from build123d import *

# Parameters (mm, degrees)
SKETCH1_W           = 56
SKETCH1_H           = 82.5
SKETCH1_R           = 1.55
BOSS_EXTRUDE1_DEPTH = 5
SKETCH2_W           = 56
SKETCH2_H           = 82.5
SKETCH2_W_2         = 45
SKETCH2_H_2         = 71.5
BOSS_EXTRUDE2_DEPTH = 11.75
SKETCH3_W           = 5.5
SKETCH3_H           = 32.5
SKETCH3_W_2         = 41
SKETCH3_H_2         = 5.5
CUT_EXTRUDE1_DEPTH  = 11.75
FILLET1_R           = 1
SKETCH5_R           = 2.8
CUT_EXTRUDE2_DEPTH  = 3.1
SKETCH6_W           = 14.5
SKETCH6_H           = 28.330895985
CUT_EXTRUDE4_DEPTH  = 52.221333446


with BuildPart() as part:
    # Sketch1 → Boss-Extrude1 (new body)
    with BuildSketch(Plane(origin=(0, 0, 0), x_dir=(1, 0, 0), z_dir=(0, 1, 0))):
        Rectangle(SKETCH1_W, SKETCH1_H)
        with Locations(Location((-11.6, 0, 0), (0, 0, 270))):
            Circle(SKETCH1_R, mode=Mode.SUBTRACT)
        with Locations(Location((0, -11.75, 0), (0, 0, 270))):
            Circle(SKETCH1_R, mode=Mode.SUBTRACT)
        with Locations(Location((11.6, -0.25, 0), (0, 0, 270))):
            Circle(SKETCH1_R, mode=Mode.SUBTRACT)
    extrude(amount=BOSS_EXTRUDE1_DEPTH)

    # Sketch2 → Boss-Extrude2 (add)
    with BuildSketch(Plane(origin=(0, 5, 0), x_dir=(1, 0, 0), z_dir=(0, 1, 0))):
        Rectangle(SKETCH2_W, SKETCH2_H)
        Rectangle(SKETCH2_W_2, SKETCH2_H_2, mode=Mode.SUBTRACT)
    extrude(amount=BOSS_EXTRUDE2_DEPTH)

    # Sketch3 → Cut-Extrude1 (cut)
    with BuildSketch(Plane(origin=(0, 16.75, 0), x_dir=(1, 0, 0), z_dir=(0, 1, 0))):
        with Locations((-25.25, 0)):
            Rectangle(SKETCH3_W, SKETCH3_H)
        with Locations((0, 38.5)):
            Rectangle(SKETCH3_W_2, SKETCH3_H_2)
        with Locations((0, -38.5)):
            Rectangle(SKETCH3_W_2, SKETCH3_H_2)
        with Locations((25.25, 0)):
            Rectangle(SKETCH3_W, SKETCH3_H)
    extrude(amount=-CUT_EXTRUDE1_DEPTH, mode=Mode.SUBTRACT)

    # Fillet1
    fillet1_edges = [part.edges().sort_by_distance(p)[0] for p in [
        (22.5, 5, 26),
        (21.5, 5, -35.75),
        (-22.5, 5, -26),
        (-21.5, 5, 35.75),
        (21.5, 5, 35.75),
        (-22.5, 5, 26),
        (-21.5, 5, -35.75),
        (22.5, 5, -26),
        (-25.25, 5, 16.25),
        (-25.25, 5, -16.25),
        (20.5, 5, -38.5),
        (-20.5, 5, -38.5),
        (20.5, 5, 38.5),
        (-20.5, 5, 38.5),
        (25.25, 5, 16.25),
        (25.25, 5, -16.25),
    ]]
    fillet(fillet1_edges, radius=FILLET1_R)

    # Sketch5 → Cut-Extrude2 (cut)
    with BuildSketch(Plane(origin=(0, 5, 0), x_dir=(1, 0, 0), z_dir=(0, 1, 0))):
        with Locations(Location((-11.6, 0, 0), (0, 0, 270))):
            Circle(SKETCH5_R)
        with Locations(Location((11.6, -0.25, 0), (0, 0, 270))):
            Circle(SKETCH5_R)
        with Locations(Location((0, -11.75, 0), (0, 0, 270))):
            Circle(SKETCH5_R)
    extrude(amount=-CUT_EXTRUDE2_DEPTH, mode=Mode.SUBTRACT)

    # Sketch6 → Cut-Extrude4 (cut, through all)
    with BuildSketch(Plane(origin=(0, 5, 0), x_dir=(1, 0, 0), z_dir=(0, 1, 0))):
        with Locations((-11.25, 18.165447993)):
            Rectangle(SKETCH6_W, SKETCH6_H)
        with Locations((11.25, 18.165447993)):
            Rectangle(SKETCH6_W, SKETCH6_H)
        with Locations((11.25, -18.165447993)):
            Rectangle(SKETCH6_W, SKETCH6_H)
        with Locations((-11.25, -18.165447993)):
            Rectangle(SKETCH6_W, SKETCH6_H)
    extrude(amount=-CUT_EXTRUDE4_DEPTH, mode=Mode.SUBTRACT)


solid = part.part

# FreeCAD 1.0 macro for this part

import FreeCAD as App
import Part
import Sketcher

V = App.Vector


def edges_at(feature, points):
    """Names of the edges that pass closest to the given points."""
    edges = feature.Shape.Edges
    near = lambda p: min(range(len(edges)), key=lambda i: edges[i].distToShape(Part.Vertex(*p))[0])
    return sorted({f"Edge{near(p) + 1}" for p in points})

doc = App.newDocument("Part")
params = doc.addObject("Spreadsheet::Sheet", "Params")
for row, (alias, value) in enumerate([
    ("sketch1_diameter", "3.1 mm"),
    ("sketch1_width", "56 mm"),
    ("sketch1_height", "82.5 mm"),
    ("pad1_length", "5 mm"),
    ("sketch2_width", "56 mm"),
    ("sketch2_width2", "45 mm"),
    ("sketch2_height", "82.5 mm"),
    ("sketch2_height2", "71.5 mm"),
    ("pad2_length", "11.75 mm"),
    ("sketch3_width", "41 mm"),
    ("sketch3_width2", "5.5 mm"),
    ("sketch3_height", "32.5 mm"),
    ("pocket1_length", "11.75 mm"),
    ("fillet_radius", "1 mm"),
    ("sketch4_diameter", "5.6 mm"),
    ("pocket2_length", "3.1 mm"),
    ("sketch5_width", "14.5 mm"),
], start=1):
    params.set(f"A{row}", alias)
    params.set(f"B{row}", "=" + value)
    params.setAlias(f"B{row}", alias)

body = doc.addObject("PartDesign::Body", "Body")

sketch1 = doc.addObject("Sketcher::SketchObject", "Sketch")
body.addObject(sketch1)
sketch1.AttachmentSupport = (doc.XZ_Plane, [""])
sketch1.MapMode = "FlatFace"
sketch1.addGeometry([
    Part.LineSegment(V(-28, -41.2, 0), V(-28, 41.2, 0)),
    Part.LineSegment(V(-28, 41.2, 0), V(28, 41.2, 0)),
    Part.LineSegment(V(28, 41.2, 0), V(28, -41.2, 0)),
    Part.LineSegment(V(28, -41.2, 0), V(-28, -41.2, 0)),
    Part.Circle(V(0, 11.8, 0), V(0, 0, 1), 1.6),
    Part.Circle(V(-11.6, 0, 0), V(0, 0, 1), 1.6),
    Part.Circle(V(11.6, 0.2, 0), V(0, 0, 1), 1.6),
], False)
sketch1.addConstraint([
    Sketcher.Constraint("Coincident", 0, 2, 1, 1),
    Sketcher.Constraint("Coincident", 1, 2, 2, 1),
    Sketcher.Constraint("Coincident", 2, 2, 3, 1),
    Sketcher.Constraint("Coincident", 3, 2, 0, 1),
    Sketcher.Constraint("Vertical", 0),
    Sketcher.Constraint("Horizontal", 1),
    Sketcher.Constraint("Vertical", 2),
    Sketcher.Constraint("Horizontal", 3),
    Sketcher.Constraint("Equal", 4, 5),
    Sketcher.Constraint("Equal", 5, 6),
    Sketcher.Constraint("Symmetric", 0, 2, 2, 2, -1, 1),
    Sketcher.Constraint("PointOnObject", 4, 3, -2),
    Sketcher.Constraint("PointOnObject", 5, 3, -1),
    Sketcher.Constraint("Diameter", 4, 3.1),
    Sketcher.Constraint("DistanceX", 1, 1, 1, 2, 56.0),
    Sketcher.Constraint("DistanceY", 0, 1, 0, 2, 82.5),
    Sketcher.Constraint("DistanceY", 6, 3, 0, 2, 41.0),
    Sketcher.Constraint("DistanceY", 2, 2, 4, 3, 53.0),
    Sketcher.Constraint("DistanceX", 5, 3, -1, 1, 11.6),
    Sketcher.Constraint("DistanceX", -1, 1, 6, 3, 11.6),
])
sketch1.setExpression("Constraints[13]", "Params.sketch1_diameter")
sketch1.setExpression("Constraints[14]", "Params.sketch1_width")
sketch1.setExpression("Constraints[15]", "Params.sketch1_height")
pad1 = doc.addObject("PartDesign::Pad", "Pad")
body.addObject(pad1)
pad1.Profile = sketch1
pad1.setExpression("Length", "Params.pad1_length")
pad1.Reversed = True

sketch2 = doc.addObject("Sketcher::SketchObject", "Sketch001")
body.addObject(sketch2)
sketch2.AttachmentSupport = (doc.XZ_Plane, [""])
sketch2.MapMode = "FlatFace"
sketch2.AttachmentOffset = App.Placement(V(0, 0, -5), App.Rotation())
sketch2.addGeometry([
    Part.LineSegment(V(-28, -41, 0), V(-28, 41, 0)),
    Part.LineSegment(V(-28, 41, 0), V(28, 41, 0)),
    Part.LineSegment(V(28, 41, 0), V(28, -41, 0)),
    Part.LineSegment(V(28, -41, 0), V(-28, -41, 0)),
    Part.LineSegment(V(22, 36, 0), V(-22, 36, 0)),
    Part.LineSegment(V(-22, 36, 0), V(-22, -36, 0)),
    Part.LineSegment(V(-22, -36, 0), V(22, -36, 0)),
    Part.LineSegment(V(22, -36, 0), V(22, 36, 0)),
], False)
sketch2.addConstraint([
    Sketcher.Constraint("Coincident", 0, 2, 1, 1),
    Sketcher.Constraint("Coincident", 1, 2, 2, 1),
    Sketcher.Constraint("Coincident", 2, 2, 3, 1),
    Sketcher.Constraint("Coincident", 3, 2, 0, 1),
    Sketcher.Constraint("Coincident", 4, 2, 5, 1),
    Sketcher.Constraint("Coincident", 5, 2, 6, 1),
    Sketcher.Constraint("Coincident", 6, 2, 7, 1),
    Sketcher.Constraint("Coincident", 7, 2, 4, 1),
    Sketcher.Constraint("Vertical", 0),
    Sketcher.Constraint("Horizontal", 1),
    Sketcher.Constraint("Vertical", 2),
    Sketcher.Constraint("Horizontal", 3),
    Sketcher.Constraint("Horizontal", 4),
    Sketcher.Constraint("Vertical", 5),
    Sketcher.Constraint("Horizontal", 6),
    Sketcher.Constraint("Vertical", 7),
    Sketcher.Constraint("Symmetric", 0, 2, 2, 2, -1, 1),
    Sketcher.Constraint("Symmetric", 4, 2, 6, 2, -1, 1),
    Sketcher.Constraint("DistanceX", 1, 1, 1, 2, 56.0),
    Sketcher.Constraint("DistanceX", 4, 2, 4, 1, 45.0),
    Sketcher.Constraint("DistanceY", 0, 1, 0, 2, 82.5),
    Sketcher.Constraint("DistanceY", 5, 2, 5, 1, 71.5),
])
sketch2.setExpression("Constraints[18]", "Params.sketch2_width")
sketch2.setExpression("Constraints[19]", "Params.sketch2_width2")
sketch2.setExpression("Constraints[20]", "Params.sketch2_height")
sketch2.setExpression("Constraints[21]", "Params.sketch2_height2")
pad2 = doc.addObject("PartDesign::Pad", "Pad001")
body.addObject(pad2)
pad2.Profile = sketch2
pad2.setExpression("Length", "Params.pad2_length")
pad2.Reversed = True

sketch3 = doc.addObject("Sketcher::SketchObject", "Sketch002")
body.addObject(sketch3)
sketch3.AttachmentSupport = (doc.XZ_Plane, [""])
sketch3.MapMode = "FlatFace"
sketch3.AttachmentOffset = App.Placement(V(0, 0, -16.75), App.Rotation())
sketch3.addGeometry([
    Part.LineSegment(V(-28, -16, 0), V(-28, 16, 0)),
    Part.LineSegment(V(-28, 16, 0), V(-22, 16, 0)),
    Part.LineSegment(V(-22, 16, 0), V(-22, -16, 0)),
    Part.LineSegment(V(-22, -16, 0), V(-28, -16, 0)),
    Part.LineSegment(V(-20, -41, 0), V(-20, -36, 0)),
    Part.LineSegment(V(-20, -36, 0), V(20, -36, 0)),
    Part.LineSegment(V(20, -36, 0), V(20, -41, 0)),
    Part.LineSegment(V(20, -41, 0), V(-20, -41, 0)),
    Part.LineSegment(V(-20, 36, 0), V(-20, 41, 0)),
    Part.LineSegment(V(-20, 41, 0), V(20, 41, 0)),
    Part.LineSegment(V(20, 41, 0), V(20, 36, 0)),
    Part.LineSegment(V(20, 36, 0), V(-20, 36, 0)),
    Part.LineSegment(V(22, -16, 0), V(22, 16, 0)),
    Part.LineSegment(V(22, 16, 0), V(28, 16, 0)),
    Part.LineSegment(V(28, 16, 0), V(28, -16, 0)),
    Part.LineSegment(V(28, -16, 0), V(22, -16, 0)),
], False)
sketch3.addConstraint([
    Sketcher.Constraint("Coincident", 0, 2, 1, 1),
    Sketcher.Constraint("Coincident", 1, 2, 2, 1),
    Sketcher.Constraint("Coincident", 2, 2, 3, 1),
    Sketcher.Constraint("Coincident", 3, 2, 0, 1),
    Sketcher.Constraint("Coincident", 4, 2, 5, 1),
    Sketcher.Constraint("Coincident", 5, 2, 6, 1),
    Sketcher.Constraint("Coincident", 6, 2, 7, 1),
    Sketcher.Constraint("Coincident", 7, 2, 4, 1),
    Sketcher.Constraint("Coincident", 8, 2, 9, 1),
    Sketcher.Constraint("Coincident", 9, 2, 10, 1),
    Sketcher.Constraint("Coincident", 10, 2, 11, 1),
    Sketcher.Constraint("Coincident", 11, 2, 8, 1),
    Sketcher.Constraint("Coincident", 12, 2, 13, 1),
    Sketcher.Constraint("Coincident", 13, 2, 14, 1),
    Sketcher.Constraint("Coincident", 14, 2, 15, 1),
    Sketcher.Constraint("Coincident", 15, 2, 12, 1),
    Sketcher.Constraint("Vertical", 0),
    Sketcher.Constraint("Horizontal", 1),
    Sketcher.Constraint("Vertical", 2),
    Sketcher.Constraint("Horizontal", 3),
    Sketcher.Constraint("Vertical", 4),
    Sketcher.Constraint("Horizontal", 5),
    Sketcher.Constraint("Vertical", 6),
    Sketcher.Constraint("Horizontal", 7),
    Sketcher.Constraint("Vertical", 8),
    Sketcher.Constraint("Horizontal", 9),
    Sketcher.Constraint("Vertical", 10),
    Sketcher.Constraint("Horizontal", 11),
    Sketcher.Constraint("Vertical", 12),
    Sketcher.Constraint("Horizontal", 13),
    Sketcher.Constraint("Vertical", 14),
    Sketcher.Constraint("Horizontal", 15),
    Sketcher.Constraint("Symmetric", 6, 2, 8, 2, -1, 1),
    Sketcher.Constraint("Symmetric", 4, 2, 10, 2, -1, 1),
    Sketcher.Constraint("Symmetric", 2, 2, 12, 2, -1, 1),
    Sketcher.Constraint("Symmetric", 0, 2, 14, 2, -1, 1),
    Sketcher.Constraint("Horizontal", 1, 2, 12, 2),
    Sketcher.Constraint("Vertical", 7, 2, 8, 2),
    Sketcher.Constraint("Equal", 15, 4),
    Sketcher.Constraint("DistanceX", 5, 1, 5, 2, 41.0),
    Sketcher.Constraint("DistanceX", 1, 1, 1, 2, 5.5),
    Sketcher.Constraint("DistanceY", 0, 1, 0, 2, 32.5),
    Sketcher.Constraint("DistanceX", 0, 2, -1, 1, 28.0),
    Sketcher.Constraint("DistanceY", 4, 2, 1, 2, 52.0),
])
sketch3.setExpression("Constraints[39]", "Params.sketch3_width")
sketch3.setExpression("Constraints[40]", "Params.sketch3_width2")
sketch3.setExpression("Constraints[41]", "Params.sketch3_height")
pocket1 = doc.addObject("PartDesign::Pocket", "Pocket")
body.addObject(pocket1)
pocket1.Profile = sketch3
pocket1.setExpression("Length", "Params.pocket1_length")
pocket1.Reversed = True
doc.recompute()

fillet = doc.addObject("PartDesign::Fillet", "Fillet")
body.addObject(fillet)
fillet.Base = (pocket1, edges_at(pocket1, [
    (22.5, 5, 26),
    (21.5, 5, -35.75),
    (-22.5, 5, -26),
    (-21.5, 5, 35.75),
    (21.5, 5, 35.75),
    (-22.5, 5, 26),
    (-21.5, 5, -35.75),
    (22.5, 5, -26),
    (-25.25, 5, 16.25),
    (-25.25, 5, -16.25),
    (20.5, 5, -38.5),
    (-20.5, 5, -38.5),
    (20.5, 5, 38.5),
    (-20.5, 5, 38.5),
    (25.25, 5, 16.25),
    (25.25, 5, -16.25),
]))
fillet.setExpression("Radius", "Params.fillet_radius")

sketch4 = doc.addObject("Sketcher::SketchObject", "Sketch003")
body.addObject(sketch4)
sketch4.AttachmentSupport = (doc.XZ_Plane, [""])
sketch4.MapMode = "FlatFace"
sketch4.AttachmentOffset = App.Placement(V(0, 0, -5), App.Rotation())
sketch4.addGeometry([
    Part.Circle(V(-11.6, 0, 0), V(0, 0, 1), 2.8),
    Part.Circle(V(11.6, 0.2, 0), V(0, 0, 1), 2.8),
    Part.Circle(V(0, 11.8, 0), V(0, 0, 1), 2.8),
], False)
sketch4.addConstraint([
    Sketcher.Constraint("Equal", 0, 1),
    Sketcher.Constraint("Equal", 1, 2),
    Sketcher.Constraint("PointOnObject", 0, 3, -1),
    Sketcher.Constraint("PointOnObject", 2, 3, -2),
    Sketcher.Constraint("Diameter", 0, 5.6),
    Sketcher.Constraint("DistanceX", 0, 3, -1, 1, 11.6),
    Sketcher.Constraint("DistanceX", -1, 1, 1, 3, 11.6),
    Sketcher.Constraint("DistanceY", 1, 3, 2, 3, 11.5),
    Sketcher.Constraint("DistanceY", -1, 1, 1, 3, 0.25),
])
sketch4.setExpression("Constraints[4]", "Params.sketch4_diameter")
pocket2 = doc.addObject("PartDesign::Pocket", "Pocket001")
body.addObject(pocket2)
pocket2.Profile = sketch4
pocket2.setExpression("Length", "Params.pocket2_length")
pocket2.Reversed = True

sketch5 = doc.addObject("Sketcher::SketchObject", "Sketch004")
body.addObject(sketch5)
sketch5.AttachmentSupport = (doc.XZ_Plane, [""])
sketch5.MapMode = "FlatFace"
sketch5.AttachmentOffset = App.Placement(V(0, 0, -5), App.Rotation())
sketch5.addGeometry([
    Part.LineSegment(V(-18, -32, 0), V(-18, -4, 0)),
    Part.LineSegment(V(-18, -4, 0), V(-4, -4, 0)),
    Part.LineSegment(V(-4, -4, 0), V(-4, -32, 0)),
    Part.LineSegment(V(-4, -32, 0), V(-18, -32, 0)),
    Part.LineSegment(V(4, -32, 0), V(4, -4, 0)),
    Part.LineSegment(V(4, -4, 0), V(18, -4, 0)),
    Part.LineSegment(V(18, -4, 0), V(18, -32, 0)),
    Part.LineSegment(V(18, -32, 0), V(4, -32, 0)),
    Part.LineSegment(V(4, 4, 0), V(4, 32, 0)),
    Part.LineSegment(V(4, 32, 0), V(18, 32, 0)),
    Part.LineSegment(V(18, 32, 0), V(18, 4, 0)),
    Part.LineSegment(V(18, 4, 0), V(4, 4, 0)),
    Part.LineSegment(V(-18, 4, 0), V(-18, 32, 0)),
    Part.LineSegment(V(-18, 32, 0), V(-4, 32, 0)),
    Part.LineSegment(V(-4, 32, 0), V(-4, 4, 0)),
    Part.LineSegment(V(-4, 4, 0), V(-18, 4, 0)),
], False)
sketch5.addConstraint([
    Sketcher.Constraint("Coincident", 0, 2, 1, 1),
    Sketcher.Constraint("Coincident", 1, 2, 2, 1),
    Sketcher.Constraint("Coincident", 2, 2, 3, 1),
    Sketcher.Constraint("Coincident", 3, 2, 0, 1),
    Sketcher.Constraint("Coincident", 4, 2, 5, 1),
    Sketcher.Constraint("Coincident", 5, 2, 6, 1),
    Sketcher.Constraint("Coincident", 6, 2, 7, 1),
    Sketcher.Constraint("Coincident", 7, 2, 4, 1),
    Sketcher.Constraint("Coincident", 8, 2, 9, 1),
    Sketcher.Constraint("Coincident", 9, 2, 10, 1),
    Sketcher.Constraint("Coincident", 10, 2, 11, 1),
    Sketcher.Constraint("Coincident", 11, 2, 8, 1),
    Sketcher.Constraint("Coincident", 12, 2, 13, 1),
    Sketcher.Constraint("Coincident", 13, 2, 14, 1),
    Sketcher.Constraint("Coincident", 14, 2, 15, 1),
    Sketcher.Constraint("Coincident", 15, 2, 12, 1),
    Sketcher.Constraint("Vertical", 0),
    Sketcher.Constraint("Horizontal", 1),
    Sketcher.Constraint("Vertical", 2),
    Sketcher.Constraint("Horizontal", 3),
    Sketcher.Constraint("Vertical", 4),
    Sketcher.Constraint("Horizontal", 5),
    Sketcher.Constraint("Vertical", 6),
    Sketcher.Constraint("Horizontal", 7),
    Sketcher.Constraint("Vertical", 8),
    Sketcher.Constraint("Horizontal", 9),
    Sketcher.Constraint("Vertical", 10),
    Sketcher.Constraint("Horizontal", 11),
    Sketcher.Constraint("Vertical", 12),
    Sketcher.Constraint("Horizontal", 13),
    Sketcher.Constraint("Vertical", 14),
    Sketcher.Constraint("Horizontal", 15),
    Sketcher.Constraint("Symmetric", 2, 2, 8, 2, -1, 1),
    Sketcher.Constraint("Symmetric", 0, 2, 10, 2, -1, 1),
    Sketcher.Constraint("Symmetric", 6, 2, 12, 2, -1, 1),
    Sketcher.Constraint("Symmetric", 4, 2, 14, 2, -1, 1),
    Sketcher.Constraint("Symmetric", 1, 2, 4, 2, -2),
    Sketcher.Constraint("Symmetric", 3, 2, 6, 2, -2),
    Sketcher.Constraint("DistanceX", 1, 1, 1, 2, 14.5),
    Sketcher.Constraint("DistanceY", 0, 2, -1, 1, 4.0),
    Sketcher.Constraint("DistanceX", 1, 2, -1, 1, 4.0),
    Sketcher.Constraint("DistanceY", 0, 1, 0, 2, 28.330896),
])
sketch5.setExpression("Constraints[38]", "Params.sketch5_width")
pocket3 = doc.addObject("PartDesign::Pocket", "Pocket002")
body.addObject(pocket3)
pocket3.Profile = sketch5
pocket3.Type = "ThroughAll"
pocket3.Reversed = True

doc.recompute()
